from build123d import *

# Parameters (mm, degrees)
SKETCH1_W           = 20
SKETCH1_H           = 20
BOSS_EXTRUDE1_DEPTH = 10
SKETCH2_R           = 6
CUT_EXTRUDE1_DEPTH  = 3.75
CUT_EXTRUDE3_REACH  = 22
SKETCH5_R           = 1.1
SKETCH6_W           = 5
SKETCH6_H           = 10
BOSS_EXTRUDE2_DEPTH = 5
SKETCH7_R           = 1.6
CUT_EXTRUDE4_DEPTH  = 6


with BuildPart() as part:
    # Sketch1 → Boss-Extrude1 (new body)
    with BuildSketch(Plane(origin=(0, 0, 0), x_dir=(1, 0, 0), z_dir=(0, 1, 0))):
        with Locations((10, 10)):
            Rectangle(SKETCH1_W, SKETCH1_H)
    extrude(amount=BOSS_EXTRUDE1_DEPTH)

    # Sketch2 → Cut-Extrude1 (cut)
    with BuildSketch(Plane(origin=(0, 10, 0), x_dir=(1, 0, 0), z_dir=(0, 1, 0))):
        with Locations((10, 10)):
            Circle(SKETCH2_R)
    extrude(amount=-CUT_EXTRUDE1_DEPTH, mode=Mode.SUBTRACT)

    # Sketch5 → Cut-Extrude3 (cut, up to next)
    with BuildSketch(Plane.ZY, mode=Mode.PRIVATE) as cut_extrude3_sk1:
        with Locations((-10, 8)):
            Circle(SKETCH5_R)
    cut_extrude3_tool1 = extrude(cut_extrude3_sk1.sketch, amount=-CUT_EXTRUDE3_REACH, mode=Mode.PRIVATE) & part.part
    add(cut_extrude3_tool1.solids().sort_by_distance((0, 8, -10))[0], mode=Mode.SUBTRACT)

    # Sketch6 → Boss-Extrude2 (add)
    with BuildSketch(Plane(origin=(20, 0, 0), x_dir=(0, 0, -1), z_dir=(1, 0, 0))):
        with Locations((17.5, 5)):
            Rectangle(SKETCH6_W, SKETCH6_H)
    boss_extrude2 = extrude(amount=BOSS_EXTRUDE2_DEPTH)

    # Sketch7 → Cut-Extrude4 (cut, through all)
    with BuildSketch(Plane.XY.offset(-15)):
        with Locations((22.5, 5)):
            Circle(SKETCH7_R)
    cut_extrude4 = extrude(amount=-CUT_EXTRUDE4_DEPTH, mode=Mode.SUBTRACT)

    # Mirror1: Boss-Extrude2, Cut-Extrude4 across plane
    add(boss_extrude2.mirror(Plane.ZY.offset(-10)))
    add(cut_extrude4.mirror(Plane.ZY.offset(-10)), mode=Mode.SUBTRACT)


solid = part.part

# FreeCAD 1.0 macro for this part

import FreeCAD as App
import Part
import Sketcher

doc = App.newDocument("Part")
body = doc.addObject("PartDesign::Body", "Body")

sketch1 = body.newObject("Sketcher::SketchObject", "Sketch")
sketch1.AttachmentSupport = (doc.getObject("XZ_Plane"), [""])
sketch1.MapMode = "FlatFace"
sketch1.addGeometry(Part.LineSegment(App.Vector(0, -20, 0), App.Vector(0, 0, 0)), False)
sketch1.addGeometry(Part.LineSegment(App.Vector(0, 0, 0), App.Vector(20, 0, 0)), False)
sketch1.addGeometry(Part.LineSegment(App.Vector(20, 0, 0), App.Vector(20, -20, 0)), False)
sketch1.addGeometry(Part.LineSegment(App.Vector(20, -20, 0), App.Vector(0, -20, 0)), False)
sketch1.addConstraint(Sketcher.Constraint("Coincident", 0, 2, 1, 1))
sketch1.addConstraint(Sketcher.Constraint("Coincident", 1, 2, 2, 1))
sketch1.addConstraint(Sketcher.Constraint("Coincident", 2, 2, 3, 1))
sketch1.addConstraint(Sketcher.Constraint("Coincident", 3, 2, 0, 1))
sketch1.addConstraint(Sketcher.Constraint("Vertical", 0))
sketch1.addConstraint(Sketcher.Constraint("Horizontal", 1))
sketch1.addConstraint(Sketcher.Constraint("Vertical", 2))
sketch1.addConstraint(Sketcher.Constraint("Horizontal", 3))
sketch1.addConstraint(Sketcher.Constraint("Coincident", 0, 2, -1, 1))
sketch1.addConstraint(Sketcher.Constraint("Equal", 3, 0))
sketch1.addConstraint(Sketcher.Constraint("DistanceX", 1, 1, 1, 2, 20.0))
pad1 = body.newObject("PartDesign::Pad", "Pad")
pad1.Profile = sketch1
pad1.Length = 10
pad1.Reversed = True

sketch2 = body.newObject("Sketcher::SketchObject", "Sketch001")
sketch2.AttachmentSupport = (doc.getObject("XZ_Plane"), [""])
sketch2.MapMode = "FlatFace"
sketch2.AttachmentOffset = App.Placement(App.Vector(0, 0, -10), App.Rotation())
sketch2.addGeometry(Part.Circle(App.Vector(10, -10, 0), App.Vector(0, 0, 1), 6), False)
sketch2.addConstraint(Sketcher.Constraint("Diameter", 0, 12.0))
sketch2.addConstraint(Sketcher.Constraint("DistanceX", -1, 1, 0, 3, 10.0))
sketch2.addConstraint(Sketcher.Constraint("DistanceY", 0, 3, -1, 1, 10.0))
pocket1 = body.newObject("PartDesign::Pocket", "Pocket")
pocket1.Profile = sketch2
pocket1.Length = 3.75
pocket1.Reversed = True

sketch3 = body.newObject("Sketcher::SketchObject", "Sketch002")
sketch3.AttachmentSupport = (doc.getObject("YZ_Plane"), [""])
sketch3.MapMode = "FlatFace"
sketch3.addGeometry(Part.Circle(App.Vector(8, -10, 0), App.Vector(0, 0, 1), 1.1), False)
sketch3.addConstraint(Sketcher.Constraint("Diameter", 0, 2.2))
sketch3.addConstraint(Sketcher.Constraint("DistanceX", -1, 1, 0, 3, 8.0))
sketch3.addConstraint(Sketcher.Constraint("DistanceY", 0, 3, -1, 1, 10.0))
pocket2 = body.newObject("PartDesign::Pocket", "Pocket001")
pocket2.Profile = sketch3
pocket2.Type = "UpToFirst"
pocket2.Reversed = True

sketch4 = body.newObject("Sketcher::SketchObject", "Sketch003")
sketch4.AttachmentSupport = (doc.getObject("YZ_Plane"), [""])
sketch4.MapMode = "FlatFace"
sketch4.AttachmentOffset = App.Placement(App.Vector(0, 0, 20), App.Rotation())
sketch4.addGeometry(Part.LineSegment(App.Vector(10, -15, 0), App.Vector(0, -15, 0)), False)
sketch4.addGeometry(Part.LineSegment(App.Vector(0, -15, 0), App.Vector(0, -20, 0)), False)
sketch4.addGeometry(Part.LineSegment(App.Vector(0, -20, 0), App.Vector(10, -20, 0)), False)
sketch4.addGeometry(Part.LineSegment(App.Vector(10, -20, 0), App.Vector(10, -15, 0)), False)
sketch4.addConstraint(Sketcher.Constraint("Coincident", 0, 2, 1, 1))
sketch4.addConstraint(Sketcher.Constraint("Coincident", 1, 2, 2, 1))
sketch4.addConstraint(Sketcher.Constraint("Coincident", 2, 2, 3, 1))
sketch4.addConstraint(Sketcher.Constraint("Coincident", 3, 2, 0, 1))
sketch4.addConstraint(Sketcher.Constraint("Horizontal", 0))
sketch4.addConstraint(Sketcher.Constraint("Vertical", 1))
sketch4.addConstraint(Sketcher.Constraint("Horizontal", 2))
sketch4.addConstraint(Sketcher.Constraint("Vertical", 3))
sketch4.addConstraint(Sketcher.Constraint("PointOnObject", 0, 2, -2))
sketch4.addConstraint(Sketcher.Constraint("DistanceX", 0, 2, 0, 1, 10.0))
sketch4.addConstraint(Sketcher.Constraint("DistanceY", 1, 2, 1, 1, 5.0))
sketch4.addConstraint(Sketcher.Constraint("DistanceY", 0, 2, -1, 1, 15.0))
pad2 = body.newObject("PartDesign::Pad", "Pad001")
pad2.Profile = sketch4
pad2.Length = 5

sketch5 = body.newObject("Sketcher::SketchObject", "Sketch004")
sketch5.AttachmentSupport = (doc.getObject("XY_Plane"), [""])
sketch5.MapMode = "FlatFace"
sketch5.AttachmentOffset = App.Placement(App.Vector(0, 0, -15), App.Rotation())
sketch5.addGeometry(Part.Circle(App.Vector(22.5, 5, 0), App.Vector(0, 0, 1), 1.6), False)
sketch5.addConstraint(Sketcher.Constraint("Diameter", 0, 3.2))
sketch5.addConstraint(Sketcher.Constraint("DistanceY", -1, 1, 0, 3, 5.0))
sketch5.addConstraint(Sketcher.Constraint("DistanceX", -1, 1, 0, 3, 22.5))
pocket3 = body.newObject("PartDesign::Pocket", "Pocket002")
pocket3.Profile = sketch5
pocket3.Type = "ThroughAll"
doc.recompute()

datumplane = body.newObject("PartDesign::Plane", "DatumPlane")
datumplane.AttachmentSupport = (doc.getObject("YZ_Plane"), [""])
datumplane.MapMode = "FlatFace"
datumplane.AttachmentOffset = App.Placement(App.Vector(0, 0, 10), App.Rotation())
mirrored = body.newObject("PartDesign::Mirrored", "Mirrored")
mirrored.Originals = [pad2, pocket3]
mirrored.MirrorPlane = (datumplane, [""])
body.Tip = mirrored

doc.recompute()
